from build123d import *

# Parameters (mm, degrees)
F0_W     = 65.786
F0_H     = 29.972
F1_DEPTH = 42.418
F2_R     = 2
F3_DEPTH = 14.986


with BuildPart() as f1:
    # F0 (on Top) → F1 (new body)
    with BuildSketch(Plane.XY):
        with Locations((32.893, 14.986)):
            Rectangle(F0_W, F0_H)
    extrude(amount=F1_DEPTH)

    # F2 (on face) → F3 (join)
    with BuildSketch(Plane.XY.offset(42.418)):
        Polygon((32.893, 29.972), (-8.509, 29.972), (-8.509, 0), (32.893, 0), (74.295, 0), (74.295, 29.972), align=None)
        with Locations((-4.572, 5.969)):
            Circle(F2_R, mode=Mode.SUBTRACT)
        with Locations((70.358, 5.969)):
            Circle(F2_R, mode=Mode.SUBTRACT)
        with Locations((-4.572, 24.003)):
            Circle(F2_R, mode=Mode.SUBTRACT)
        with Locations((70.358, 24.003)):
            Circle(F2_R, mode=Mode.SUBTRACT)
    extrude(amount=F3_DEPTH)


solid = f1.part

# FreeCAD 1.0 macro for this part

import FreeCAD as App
import Part
import Sketcher

V = App.Vector
Q = App.Units.Quantity


def add_polygon(sketch, points):
    """Adds a closed chain of lines whose ends are joined by coincident constraints."""
    first, n = sketch.GeometryCount, len(points)
    for a, b in zip(points, points[1:] + points[:1]):
        sketch.addGeometry(Part.LineSegment(App.Vector(*a, 0), App.Vector(*b, 0)), False)
    for i in range(n):
        sketch.addConstraint(Sketcher.Constraint("Coincident", first + i, 2, first + (i + 1) % n, 1))

doc = App.newDocument("Part")
params = doc.addObject("Spreadsheet::Sheet", "Params")
for row, (alias, value) in enumerate([
    ("sketch1_width", "2.59 in"),
    ("sketch1_height", "1.18 in"),
    ("pad1_length", "1.67 in"),
    ("sketch2_width", "3.26 in"),
    ("sketch2_height", "1.18 in"),
    ("pad2_length", "0.59 in"),
], start=1):
    params.set(f"A{row}", alias)
    params.set(f"B{row}", "=" + value)
    params.setAlias(f"B{row}", alias)

body = doc.addObject("PartDesign::Body", "Body")

sketch1 = body.newObject("Sketcher::SketchObject", "Sketch")
sketch1.AttachmentSupport = (doc.getObject("XY_Plane"), [""])
sketch1.MapMode = "FlatFace"
add_polygon(sketch1, [(0, 29.972), (0, 0), (65.786, 0), (65.786, 29.972)])
sketch1.addConstraint([
    Sketcher.Constraint("Vertical", 0),
    Sketcher.Constraint("Horizontal", 1),
    Sketcher.Constraint("Vertical", 2),
    Sketcher.Constraint("Horizontal", 3),
    Sketcher.Constraint("Coincident", 0, 2, -1, 1),
    Sketcher.Constraint("DistanceX", 1, 1, 1, 2, Q("2.59 in")),
    Sketcher.Constraint("DistanceY", 0, 2, 0, 1, Q("1.18 in")),
])
sketch1.setExpression("Constraints[9]", "Params.sketch1_width")
sketch1.setExpression("Constraints[10]", "Params.sketch1_height")
pad1 = body.newObject("PartDesign::Pad", "Pad")
pad1.Profile = sketch1
pad1.setExpression("Length", "Params.pad1_length")

sketch2 = body.newObject("Sketcher::SketchObject", "Sketch001")
sketch2.AttachmentSupport = (doc.getObject("XY_Plane"), [""])
sketch2.MapMode = "FlatFace"
sketch2.AttachmentOffset = App.Placement(V(0, 0, 1.67 * 25.4), App.Rotation())
add_polygon(sketch2, [(-8.509, 29.972), (-8.509, 0), (74.295, 0), (74.295, 29.972)])
sketch2.addGeometry(Part.Circle(V(-4.572, 5.969, 0), V(0, 0, 1), 2), False)
sketch2.addGeometry(Part.Circle(V(70.358, 5.969, 0), V(0, 0, 1), 2), False)
sketch2.addGeometry(Part.Circle(V(-4.572, 24.003, 0), V(0, 0, 1), 2), False)
sketch2.addGeometry(Part.Circle(V(70.358, 24.003, 0), V(0, 0, 1), 2), False)
sketch2.addConstraint([
    Sketcher.Constraint("Vertical", 0),
    Sketcher.Constraint("Horizontal", 1),
    Sketcher.Constraint("Vertical", 2),
    Sketcher.Constraint("Horizontal", 3),
    Sketcher.Constraint("Equal", 4, 5),
    Sketcher.Constraint("Equal", 5, 6),
    Sketcher.Constraint("Equal", 6, 7),
    Sketcher.Constraint("PointOnObject", 0, 2, -1),
    Sketcher.Constraint("Horizontal", 4, 3, 5, 3),
    Sketcher.Constraint("Horizontal", 6, 3, 7, 3),
    Sketcher.Constraint("Vertical", 4, 3, 6, 3),
    Sketcher.Constraint("Vertical", 5, 3, 7, 3),
    Sketcher.Constraint("DistanceX", 1, 1, 1, 2, Q("3.26 in")),
    Sketcher.Constraint("DistanceY", 0, 2, 0, 1, Q("1.18 in")),
    Sketcher.Constraint("Diameter", 4, 4.0),
    Sketcher.Constraint("DistanceX", 4, 3, -1, 1, Q("0.18 in")),
    Sketcher.Constraint("DistanceX", -1, 1, 5, 3, Q("2.77 in")),
    Sketcher.Constraint("DistanceY", 4, 3, 6, 3, Q("0.71 in")),
    Sketcher.Constraint("DistanceY", -1, 1, 4, 3, Q("0.235 in")),
    Sketcher.Constraint("DistanceX", 0, 2, -1, 1, Q("0.335 in")),
])
sketch2.setExpression("Constraints[16]", "Params.sketch2_width")
sketch2.setExpression("Constraints[17]", "Params.sketch2_height")
pad2 = body.newObject("PartDesign::Pad", "Pad001")
pad2.Profile = sketch2
pad2.setExpression("Length", "Params.pad2_length")

doc.recompute()
